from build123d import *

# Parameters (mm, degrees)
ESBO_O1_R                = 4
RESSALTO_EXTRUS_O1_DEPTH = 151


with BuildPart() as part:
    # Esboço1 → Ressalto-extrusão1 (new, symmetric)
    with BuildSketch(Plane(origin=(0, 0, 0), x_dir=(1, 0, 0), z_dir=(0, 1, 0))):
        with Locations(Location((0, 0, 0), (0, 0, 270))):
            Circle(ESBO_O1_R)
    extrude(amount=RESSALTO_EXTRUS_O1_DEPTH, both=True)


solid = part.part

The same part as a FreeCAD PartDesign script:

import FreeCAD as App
import Part
import Sketcher
Q = App.Units.Quantity

doc = App.newDocument("Part")
body = doc.addObject("PartDesign::Body", "Body")

sketch1 = doc.addObject("Sketcher::SketchObject", "Sketch")
body.addObject(sketch1)
sketch1.AttachmentSupport = (doc.XZ_Plane, [""])
sketch1.MapMode = "FlatFace"
sketch1.addGeometry(Part.Circle(App.Vector(0, 0, 0), App.Vector(0, 0, 1), 4), False)
sketch1.addConstraint([
    Sketcher.Constraint("Coincident", 0, 3, -1, 1),
    Sketcher.Constraint("Diameter", 0, Q("8 mm")),
])
pad1 = doc.addObject("PartDesign::Pad", "Pad")
body.addObject(pad1)
pad1.Profile = sketch1
pad1.Length = 302
pad1.Midplane = True

doc.recompute()
